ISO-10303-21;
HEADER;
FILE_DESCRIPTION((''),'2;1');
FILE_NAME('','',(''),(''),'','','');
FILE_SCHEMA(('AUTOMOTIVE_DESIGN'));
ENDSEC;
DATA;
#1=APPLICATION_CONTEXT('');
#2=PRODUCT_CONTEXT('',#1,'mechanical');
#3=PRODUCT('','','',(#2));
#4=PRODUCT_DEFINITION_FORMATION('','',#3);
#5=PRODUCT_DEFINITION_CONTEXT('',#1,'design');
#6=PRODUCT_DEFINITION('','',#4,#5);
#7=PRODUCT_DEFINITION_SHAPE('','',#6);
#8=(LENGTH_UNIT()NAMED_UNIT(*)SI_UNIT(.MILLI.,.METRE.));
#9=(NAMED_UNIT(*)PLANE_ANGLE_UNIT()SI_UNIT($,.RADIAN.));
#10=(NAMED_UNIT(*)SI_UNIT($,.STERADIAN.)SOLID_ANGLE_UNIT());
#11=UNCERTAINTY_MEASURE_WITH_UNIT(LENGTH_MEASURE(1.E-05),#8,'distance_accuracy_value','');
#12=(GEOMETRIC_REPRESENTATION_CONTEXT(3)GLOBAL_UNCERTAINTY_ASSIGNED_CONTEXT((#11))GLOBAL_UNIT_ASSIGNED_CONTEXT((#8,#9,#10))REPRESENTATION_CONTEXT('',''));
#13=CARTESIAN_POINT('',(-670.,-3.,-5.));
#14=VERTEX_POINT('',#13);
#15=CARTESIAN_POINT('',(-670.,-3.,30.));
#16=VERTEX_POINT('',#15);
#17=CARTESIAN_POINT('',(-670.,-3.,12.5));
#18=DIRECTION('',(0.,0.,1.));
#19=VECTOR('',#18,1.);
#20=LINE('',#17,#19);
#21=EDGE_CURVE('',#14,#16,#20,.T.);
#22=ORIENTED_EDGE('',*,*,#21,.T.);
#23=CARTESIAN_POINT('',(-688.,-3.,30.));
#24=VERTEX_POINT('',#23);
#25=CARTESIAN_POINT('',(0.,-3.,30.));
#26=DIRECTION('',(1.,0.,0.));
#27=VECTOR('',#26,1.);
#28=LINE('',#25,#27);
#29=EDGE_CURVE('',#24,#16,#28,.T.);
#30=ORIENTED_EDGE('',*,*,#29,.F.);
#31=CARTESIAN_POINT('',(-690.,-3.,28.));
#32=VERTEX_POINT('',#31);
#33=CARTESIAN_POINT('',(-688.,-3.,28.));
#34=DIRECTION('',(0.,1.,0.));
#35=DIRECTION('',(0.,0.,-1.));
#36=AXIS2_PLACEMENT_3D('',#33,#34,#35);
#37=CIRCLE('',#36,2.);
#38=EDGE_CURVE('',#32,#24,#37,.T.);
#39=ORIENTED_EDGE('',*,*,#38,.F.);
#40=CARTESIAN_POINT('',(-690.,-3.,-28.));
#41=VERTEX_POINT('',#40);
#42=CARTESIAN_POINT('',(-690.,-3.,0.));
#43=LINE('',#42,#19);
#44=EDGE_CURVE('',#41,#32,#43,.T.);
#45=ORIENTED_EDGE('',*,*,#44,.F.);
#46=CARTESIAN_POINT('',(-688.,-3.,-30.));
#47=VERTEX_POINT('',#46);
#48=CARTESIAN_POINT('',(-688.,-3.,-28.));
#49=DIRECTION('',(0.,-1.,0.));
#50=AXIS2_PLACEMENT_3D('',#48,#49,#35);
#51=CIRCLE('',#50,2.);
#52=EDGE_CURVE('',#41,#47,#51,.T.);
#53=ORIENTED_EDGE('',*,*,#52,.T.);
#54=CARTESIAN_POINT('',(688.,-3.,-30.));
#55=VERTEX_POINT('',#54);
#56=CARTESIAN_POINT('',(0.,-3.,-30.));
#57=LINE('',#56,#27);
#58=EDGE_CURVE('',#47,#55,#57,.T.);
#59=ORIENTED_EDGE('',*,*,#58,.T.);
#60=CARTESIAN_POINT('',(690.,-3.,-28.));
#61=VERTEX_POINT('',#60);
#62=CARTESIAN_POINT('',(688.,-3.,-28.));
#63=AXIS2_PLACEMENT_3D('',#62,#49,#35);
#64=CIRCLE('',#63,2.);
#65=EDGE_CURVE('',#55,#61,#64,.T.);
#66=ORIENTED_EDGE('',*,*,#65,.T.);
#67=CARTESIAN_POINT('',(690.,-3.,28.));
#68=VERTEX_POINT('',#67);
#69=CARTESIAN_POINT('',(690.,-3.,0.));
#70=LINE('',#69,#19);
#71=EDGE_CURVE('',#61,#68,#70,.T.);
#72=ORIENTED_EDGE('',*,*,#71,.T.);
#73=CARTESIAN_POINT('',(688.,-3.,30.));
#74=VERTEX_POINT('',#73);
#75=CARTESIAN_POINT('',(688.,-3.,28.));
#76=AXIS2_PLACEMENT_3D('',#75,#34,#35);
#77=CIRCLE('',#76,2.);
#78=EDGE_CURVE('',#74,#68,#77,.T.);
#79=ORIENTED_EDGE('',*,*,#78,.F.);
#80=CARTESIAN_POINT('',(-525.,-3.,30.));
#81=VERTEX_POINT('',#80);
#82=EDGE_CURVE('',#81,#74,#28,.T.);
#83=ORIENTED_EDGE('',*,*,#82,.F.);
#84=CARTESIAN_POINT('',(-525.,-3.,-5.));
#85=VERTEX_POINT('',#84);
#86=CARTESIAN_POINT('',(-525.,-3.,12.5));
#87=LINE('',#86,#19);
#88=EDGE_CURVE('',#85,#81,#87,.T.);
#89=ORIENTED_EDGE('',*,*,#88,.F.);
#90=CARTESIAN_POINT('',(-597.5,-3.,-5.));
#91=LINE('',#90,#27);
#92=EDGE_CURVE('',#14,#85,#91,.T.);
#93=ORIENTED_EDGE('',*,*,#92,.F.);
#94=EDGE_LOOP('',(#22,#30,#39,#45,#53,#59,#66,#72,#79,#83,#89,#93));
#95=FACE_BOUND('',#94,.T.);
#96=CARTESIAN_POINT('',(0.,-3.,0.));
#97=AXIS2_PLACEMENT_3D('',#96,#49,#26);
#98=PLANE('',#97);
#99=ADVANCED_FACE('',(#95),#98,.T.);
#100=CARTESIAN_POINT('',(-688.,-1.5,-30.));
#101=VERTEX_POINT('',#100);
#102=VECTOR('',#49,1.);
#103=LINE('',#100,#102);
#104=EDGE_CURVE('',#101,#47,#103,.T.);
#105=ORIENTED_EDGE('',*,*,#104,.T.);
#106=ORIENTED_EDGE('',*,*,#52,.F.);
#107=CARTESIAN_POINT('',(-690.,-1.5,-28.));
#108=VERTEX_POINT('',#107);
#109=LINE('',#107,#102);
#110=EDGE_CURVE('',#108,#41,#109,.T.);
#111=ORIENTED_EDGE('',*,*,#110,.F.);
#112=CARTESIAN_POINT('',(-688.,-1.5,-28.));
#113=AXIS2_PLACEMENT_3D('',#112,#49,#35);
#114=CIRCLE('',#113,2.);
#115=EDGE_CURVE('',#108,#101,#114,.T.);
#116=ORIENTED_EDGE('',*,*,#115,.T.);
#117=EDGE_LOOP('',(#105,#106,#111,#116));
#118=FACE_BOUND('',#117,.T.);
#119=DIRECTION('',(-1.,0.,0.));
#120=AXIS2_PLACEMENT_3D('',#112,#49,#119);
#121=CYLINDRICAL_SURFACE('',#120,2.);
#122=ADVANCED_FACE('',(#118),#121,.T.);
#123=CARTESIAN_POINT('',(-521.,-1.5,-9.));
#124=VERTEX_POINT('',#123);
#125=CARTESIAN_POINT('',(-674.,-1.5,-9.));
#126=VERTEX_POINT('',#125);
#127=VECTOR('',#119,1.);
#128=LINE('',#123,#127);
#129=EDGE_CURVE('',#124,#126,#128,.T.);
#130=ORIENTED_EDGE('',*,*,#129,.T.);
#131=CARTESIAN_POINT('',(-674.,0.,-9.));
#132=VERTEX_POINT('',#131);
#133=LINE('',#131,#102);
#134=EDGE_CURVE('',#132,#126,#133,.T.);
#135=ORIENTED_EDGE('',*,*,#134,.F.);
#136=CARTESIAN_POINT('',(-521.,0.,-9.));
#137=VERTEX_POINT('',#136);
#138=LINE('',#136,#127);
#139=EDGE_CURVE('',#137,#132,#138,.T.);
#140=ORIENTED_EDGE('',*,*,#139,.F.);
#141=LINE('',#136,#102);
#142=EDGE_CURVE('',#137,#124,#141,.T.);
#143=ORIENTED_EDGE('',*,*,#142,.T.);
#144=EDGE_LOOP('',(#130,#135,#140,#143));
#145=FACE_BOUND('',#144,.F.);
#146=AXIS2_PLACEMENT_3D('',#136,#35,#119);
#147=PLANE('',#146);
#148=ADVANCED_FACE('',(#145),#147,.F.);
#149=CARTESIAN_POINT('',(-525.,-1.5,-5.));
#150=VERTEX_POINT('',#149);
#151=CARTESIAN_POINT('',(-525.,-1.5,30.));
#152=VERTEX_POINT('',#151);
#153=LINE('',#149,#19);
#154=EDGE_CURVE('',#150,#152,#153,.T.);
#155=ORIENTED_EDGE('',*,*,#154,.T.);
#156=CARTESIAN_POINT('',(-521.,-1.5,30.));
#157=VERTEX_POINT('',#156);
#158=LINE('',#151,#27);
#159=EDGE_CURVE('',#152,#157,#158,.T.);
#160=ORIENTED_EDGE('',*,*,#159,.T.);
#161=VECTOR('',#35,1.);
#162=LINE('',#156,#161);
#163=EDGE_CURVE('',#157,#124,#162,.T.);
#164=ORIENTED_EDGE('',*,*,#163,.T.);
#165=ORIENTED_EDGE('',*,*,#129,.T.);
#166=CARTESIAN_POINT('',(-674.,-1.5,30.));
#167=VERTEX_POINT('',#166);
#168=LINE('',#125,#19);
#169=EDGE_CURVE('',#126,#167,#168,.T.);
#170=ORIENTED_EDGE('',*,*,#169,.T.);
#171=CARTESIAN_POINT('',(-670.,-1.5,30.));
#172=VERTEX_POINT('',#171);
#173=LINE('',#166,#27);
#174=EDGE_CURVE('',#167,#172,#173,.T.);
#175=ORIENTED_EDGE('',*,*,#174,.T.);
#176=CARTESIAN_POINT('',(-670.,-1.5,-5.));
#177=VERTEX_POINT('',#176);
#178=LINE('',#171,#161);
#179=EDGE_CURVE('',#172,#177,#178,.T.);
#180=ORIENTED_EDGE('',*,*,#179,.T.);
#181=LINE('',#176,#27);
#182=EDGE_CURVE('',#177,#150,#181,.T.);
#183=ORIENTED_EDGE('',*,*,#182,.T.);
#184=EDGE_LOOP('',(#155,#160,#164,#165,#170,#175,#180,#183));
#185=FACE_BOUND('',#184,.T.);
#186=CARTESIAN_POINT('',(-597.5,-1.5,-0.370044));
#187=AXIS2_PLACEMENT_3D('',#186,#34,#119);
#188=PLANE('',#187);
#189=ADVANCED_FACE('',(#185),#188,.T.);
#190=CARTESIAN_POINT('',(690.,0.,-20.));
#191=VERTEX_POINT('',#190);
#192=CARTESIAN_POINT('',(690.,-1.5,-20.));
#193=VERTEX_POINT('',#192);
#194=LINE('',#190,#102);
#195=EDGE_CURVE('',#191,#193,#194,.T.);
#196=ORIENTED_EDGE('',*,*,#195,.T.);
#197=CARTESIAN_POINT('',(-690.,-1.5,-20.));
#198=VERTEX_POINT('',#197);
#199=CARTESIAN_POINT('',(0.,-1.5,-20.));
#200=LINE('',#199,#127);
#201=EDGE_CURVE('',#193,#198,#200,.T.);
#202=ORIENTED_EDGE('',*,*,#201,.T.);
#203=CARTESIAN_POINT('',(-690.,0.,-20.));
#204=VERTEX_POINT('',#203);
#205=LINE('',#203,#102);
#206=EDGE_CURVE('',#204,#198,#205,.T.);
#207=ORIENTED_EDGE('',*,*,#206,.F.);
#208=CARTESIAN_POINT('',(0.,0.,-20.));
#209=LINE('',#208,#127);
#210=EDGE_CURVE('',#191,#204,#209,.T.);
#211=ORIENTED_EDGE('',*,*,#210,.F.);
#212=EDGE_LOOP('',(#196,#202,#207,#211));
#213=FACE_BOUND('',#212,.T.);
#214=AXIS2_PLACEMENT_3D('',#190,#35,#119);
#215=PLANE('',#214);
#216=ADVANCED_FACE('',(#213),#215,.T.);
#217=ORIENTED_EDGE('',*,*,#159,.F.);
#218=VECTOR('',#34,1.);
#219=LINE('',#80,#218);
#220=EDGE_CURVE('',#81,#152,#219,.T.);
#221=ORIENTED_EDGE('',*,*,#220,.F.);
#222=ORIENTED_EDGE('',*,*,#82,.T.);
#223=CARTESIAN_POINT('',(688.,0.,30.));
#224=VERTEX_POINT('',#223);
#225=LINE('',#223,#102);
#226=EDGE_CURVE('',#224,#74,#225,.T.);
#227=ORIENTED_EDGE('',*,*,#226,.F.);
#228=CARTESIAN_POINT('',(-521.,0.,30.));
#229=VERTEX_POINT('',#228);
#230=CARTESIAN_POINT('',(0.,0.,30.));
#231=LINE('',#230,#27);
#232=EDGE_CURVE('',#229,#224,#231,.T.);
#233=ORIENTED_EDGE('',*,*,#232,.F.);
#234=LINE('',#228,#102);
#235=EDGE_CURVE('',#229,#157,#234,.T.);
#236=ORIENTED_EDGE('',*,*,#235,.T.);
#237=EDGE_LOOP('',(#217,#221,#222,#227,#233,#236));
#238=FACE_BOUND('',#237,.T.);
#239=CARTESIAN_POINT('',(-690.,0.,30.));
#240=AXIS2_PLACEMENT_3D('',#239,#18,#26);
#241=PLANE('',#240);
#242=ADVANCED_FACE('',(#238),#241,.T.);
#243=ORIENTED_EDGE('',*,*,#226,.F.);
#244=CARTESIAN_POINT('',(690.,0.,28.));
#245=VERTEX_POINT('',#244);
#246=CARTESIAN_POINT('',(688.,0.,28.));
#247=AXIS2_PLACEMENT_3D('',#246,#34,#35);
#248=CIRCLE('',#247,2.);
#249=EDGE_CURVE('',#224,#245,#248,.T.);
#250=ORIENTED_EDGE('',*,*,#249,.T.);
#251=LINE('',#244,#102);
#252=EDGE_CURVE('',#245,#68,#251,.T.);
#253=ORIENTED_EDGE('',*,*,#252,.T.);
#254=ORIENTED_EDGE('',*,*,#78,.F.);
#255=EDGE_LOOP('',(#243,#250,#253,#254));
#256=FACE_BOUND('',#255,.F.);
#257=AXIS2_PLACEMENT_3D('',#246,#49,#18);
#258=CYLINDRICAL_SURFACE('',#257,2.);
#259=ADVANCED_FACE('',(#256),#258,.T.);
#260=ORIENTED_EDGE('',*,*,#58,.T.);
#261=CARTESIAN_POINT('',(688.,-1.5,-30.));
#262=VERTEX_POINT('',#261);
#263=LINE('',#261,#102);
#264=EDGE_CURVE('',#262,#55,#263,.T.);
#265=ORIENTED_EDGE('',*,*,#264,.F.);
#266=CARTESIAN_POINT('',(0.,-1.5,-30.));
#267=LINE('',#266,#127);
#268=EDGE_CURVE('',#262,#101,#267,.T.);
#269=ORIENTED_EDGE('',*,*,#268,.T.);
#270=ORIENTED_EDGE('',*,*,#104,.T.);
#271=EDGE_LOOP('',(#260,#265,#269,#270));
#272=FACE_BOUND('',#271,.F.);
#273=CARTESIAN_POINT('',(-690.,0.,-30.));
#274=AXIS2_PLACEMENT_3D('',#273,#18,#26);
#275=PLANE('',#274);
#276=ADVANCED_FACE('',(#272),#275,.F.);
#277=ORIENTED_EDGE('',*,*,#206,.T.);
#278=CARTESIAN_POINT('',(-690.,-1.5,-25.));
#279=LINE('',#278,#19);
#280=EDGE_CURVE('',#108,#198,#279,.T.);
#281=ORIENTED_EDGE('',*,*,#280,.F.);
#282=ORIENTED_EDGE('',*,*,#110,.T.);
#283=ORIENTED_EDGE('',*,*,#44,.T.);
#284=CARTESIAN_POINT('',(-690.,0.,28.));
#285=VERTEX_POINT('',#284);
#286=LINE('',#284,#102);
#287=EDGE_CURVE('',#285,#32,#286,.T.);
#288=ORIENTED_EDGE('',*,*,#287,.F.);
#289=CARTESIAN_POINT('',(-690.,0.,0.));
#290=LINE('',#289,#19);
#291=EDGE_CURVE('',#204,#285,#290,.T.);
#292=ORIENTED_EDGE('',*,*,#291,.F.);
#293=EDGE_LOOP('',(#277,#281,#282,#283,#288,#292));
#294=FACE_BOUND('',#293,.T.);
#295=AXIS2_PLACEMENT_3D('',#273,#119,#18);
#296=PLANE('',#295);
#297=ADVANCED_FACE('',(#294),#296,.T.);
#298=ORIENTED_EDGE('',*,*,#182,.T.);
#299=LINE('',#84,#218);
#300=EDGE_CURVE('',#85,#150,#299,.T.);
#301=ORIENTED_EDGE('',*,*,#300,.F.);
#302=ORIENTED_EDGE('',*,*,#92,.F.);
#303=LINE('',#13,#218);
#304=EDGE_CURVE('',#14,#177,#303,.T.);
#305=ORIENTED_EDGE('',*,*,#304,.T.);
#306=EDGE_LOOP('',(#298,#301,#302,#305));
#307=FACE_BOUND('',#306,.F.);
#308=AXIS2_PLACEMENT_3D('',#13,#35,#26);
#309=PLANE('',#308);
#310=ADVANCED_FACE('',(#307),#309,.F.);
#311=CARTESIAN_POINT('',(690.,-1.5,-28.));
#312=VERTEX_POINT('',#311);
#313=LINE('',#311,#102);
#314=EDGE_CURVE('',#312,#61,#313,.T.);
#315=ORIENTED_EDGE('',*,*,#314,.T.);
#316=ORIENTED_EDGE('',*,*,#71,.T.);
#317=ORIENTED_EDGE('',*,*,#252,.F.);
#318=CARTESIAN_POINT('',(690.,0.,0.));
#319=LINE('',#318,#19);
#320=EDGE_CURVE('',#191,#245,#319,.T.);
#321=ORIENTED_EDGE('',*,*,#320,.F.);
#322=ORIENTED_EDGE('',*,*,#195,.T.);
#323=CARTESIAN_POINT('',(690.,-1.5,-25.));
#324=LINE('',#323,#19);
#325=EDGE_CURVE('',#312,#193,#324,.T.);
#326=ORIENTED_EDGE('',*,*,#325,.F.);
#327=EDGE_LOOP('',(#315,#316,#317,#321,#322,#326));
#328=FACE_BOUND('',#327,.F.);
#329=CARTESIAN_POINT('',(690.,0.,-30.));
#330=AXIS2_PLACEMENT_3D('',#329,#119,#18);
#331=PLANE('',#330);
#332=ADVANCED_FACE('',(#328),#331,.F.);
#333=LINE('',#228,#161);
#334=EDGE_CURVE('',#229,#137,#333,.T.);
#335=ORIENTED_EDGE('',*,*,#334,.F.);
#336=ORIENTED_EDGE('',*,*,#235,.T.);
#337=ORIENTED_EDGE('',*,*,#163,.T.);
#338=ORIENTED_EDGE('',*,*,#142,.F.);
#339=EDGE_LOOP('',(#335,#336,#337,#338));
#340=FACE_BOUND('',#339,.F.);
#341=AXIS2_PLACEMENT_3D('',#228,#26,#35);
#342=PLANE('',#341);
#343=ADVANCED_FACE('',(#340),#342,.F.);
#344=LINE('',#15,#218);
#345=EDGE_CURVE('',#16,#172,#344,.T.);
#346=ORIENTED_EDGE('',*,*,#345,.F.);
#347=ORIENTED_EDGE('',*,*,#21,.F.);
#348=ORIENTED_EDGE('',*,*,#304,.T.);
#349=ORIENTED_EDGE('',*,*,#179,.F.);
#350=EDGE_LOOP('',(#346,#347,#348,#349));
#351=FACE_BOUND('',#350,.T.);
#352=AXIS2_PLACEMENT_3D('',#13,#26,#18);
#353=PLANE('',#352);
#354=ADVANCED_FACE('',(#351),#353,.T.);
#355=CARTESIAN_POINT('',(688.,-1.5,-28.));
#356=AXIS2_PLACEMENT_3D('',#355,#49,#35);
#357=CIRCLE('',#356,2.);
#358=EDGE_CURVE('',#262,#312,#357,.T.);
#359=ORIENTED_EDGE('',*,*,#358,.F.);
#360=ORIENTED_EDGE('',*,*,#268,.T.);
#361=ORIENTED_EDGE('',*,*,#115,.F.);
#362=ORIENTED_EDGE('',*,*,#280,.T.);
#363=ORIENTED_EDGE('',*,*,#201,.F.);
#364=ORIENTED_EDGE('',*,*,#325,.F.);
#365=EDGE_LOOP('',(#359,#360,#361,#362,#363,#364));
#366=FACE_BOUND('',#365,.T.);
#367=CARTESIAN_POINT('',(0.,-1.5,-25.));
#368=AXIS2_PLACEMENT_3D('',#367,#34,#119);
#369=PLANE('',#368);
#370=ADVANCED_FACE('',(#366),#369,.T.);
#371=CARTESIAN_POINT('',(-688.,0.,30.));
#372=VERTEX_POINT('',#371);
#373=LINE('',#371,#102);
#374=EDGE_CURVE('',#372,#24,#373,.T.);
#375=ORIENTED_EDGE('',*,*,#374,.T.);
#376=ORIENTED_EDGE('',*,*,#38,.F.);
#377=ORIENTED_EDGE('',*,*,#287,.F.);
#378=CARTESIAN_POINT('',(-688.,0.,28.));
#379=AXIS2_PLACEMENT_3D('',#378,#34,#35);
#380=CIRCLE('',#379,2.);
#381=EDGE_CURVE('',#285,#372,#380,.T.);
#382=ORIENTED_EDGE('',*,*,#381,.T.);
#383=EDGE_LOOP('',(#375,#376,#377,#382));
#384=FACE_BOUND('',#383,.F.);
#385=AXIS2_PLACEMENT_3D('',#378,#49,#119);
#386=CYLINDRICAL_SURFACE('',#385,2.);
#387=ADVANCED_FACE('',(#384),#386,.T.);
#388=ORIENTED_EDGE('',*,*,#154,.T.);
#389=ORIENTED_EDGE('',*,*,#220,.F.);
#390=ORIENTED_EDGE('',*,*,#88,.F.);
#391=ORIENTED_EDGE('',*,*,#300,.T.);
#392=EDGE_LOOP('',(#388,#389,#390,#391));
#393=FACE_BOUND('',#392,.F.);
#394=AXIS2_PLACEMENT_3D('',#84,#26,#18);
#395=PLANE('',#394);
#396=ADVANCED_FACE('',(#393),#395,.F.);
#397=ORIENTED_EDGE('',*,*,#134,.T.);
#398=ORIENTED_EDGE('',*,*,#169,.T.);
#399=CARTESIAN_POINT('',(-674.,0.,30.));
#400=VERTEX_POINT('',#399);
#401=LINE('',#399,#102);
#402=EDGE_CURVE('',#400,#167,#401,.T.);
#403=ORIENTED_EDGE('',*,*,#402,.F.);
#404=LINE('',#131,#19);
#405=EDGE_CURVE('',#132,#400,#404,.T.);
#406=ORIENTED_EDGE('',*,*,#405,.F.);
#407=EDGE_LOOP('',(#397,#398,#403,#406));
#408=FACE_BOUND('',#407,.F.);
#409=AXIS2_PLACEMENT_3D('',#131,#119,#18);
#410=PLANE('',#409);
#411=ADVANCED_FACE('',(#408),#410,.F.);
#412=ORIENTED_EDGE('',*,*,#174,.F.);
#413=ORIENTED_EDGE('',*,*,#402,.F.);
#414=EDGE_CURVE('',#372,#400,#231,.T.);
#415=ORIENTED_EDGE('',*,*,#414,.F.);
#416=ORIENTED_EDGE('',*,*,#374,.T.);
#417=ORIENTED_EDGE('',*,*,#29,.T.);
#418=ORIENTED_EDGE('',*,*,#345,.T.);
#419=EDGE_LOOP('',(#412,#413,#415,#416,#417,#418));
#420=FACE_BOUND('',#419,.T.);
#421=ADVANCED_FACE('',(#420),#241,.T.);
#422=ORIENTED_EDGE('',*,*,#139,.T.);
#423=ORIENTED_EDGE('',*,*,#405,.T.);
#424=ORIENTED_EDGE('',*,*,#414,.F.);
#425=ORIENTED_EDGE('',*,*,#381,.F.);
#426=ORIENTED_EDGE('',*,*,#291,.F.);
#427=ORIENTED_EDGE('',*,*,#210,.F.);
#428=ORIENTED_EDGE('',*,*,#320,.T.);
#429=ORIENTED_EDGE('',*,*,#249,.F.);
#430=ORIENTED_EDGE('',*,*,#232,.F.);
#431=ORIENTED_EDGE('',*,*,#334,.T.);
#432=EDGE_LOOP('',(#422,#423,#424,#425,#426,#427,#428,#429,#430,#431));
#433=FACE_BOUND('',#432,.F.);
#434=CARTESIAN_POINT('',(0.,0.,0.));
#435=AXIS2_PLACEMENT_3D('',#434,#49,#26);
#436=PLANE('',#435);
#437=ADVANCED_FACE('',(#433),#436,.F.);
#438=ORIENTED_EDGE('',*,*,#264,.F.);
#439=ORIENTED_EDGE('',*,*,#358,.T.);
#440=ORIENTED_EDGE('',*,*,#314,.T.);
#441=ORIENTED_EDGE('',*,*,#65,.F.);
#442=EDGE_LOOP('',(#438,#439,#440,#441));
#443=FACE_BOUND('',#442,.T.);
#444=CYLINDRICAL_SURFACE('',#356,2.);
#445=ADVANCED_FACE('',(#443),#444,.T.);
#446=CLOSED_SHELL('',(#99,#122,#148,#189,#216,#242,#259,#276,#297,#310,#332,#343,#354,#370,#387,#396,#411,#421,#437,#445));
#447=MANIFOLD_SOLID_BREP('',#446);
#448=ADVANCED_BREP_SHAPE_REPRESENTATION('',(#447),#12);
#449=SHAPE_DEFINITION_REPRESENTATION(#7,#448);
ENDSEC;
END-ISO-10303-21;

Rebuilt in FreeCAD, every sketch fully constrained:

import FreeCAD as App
import Part
import Sketcher

V = App.Vector


def edges_at(feature, points):
    """Names of the edges that pass closest to the given points."""
    edges = feature.Shape.Edges
    near = lambda p: min(range(len(edges)), key=lambda i: edges[i].distToShape(Part.Vertex(*p))[0])
    return sorted({f"Edge{near(p) + 1}" for p in points})


def add_polygon(sketch, points):
    """Adds a closed chain of lines whose ends are joined by coincident constraints."""
    first, n = sketch.GeometryCount, len(points)
    for a, b in zip(points, points[1:] + points[:1]):
        sketch.addGeometry(Part.LineSegment(App.Vector(*a, 0), App.Vector(*b, 0)), False)
    for i in range(n):
        sketch.addConstraint(Sketcher.Constraint("Coincident", first + i, 2, first + (i + 1) % n, 1))

doc = App.newDocument("Part")
body = doc.addObject("PartDesign::Body", "Body")

sketch1 = body.newObject("Sketcher::SketchObject", "Sketch")
sketch1.AttachmentSupport = (doc.getObject("XZ_Plane"), [""])
sketch1.MapMode = "FlatFace"
add_polygon(sketch1, [(-690, 30), (-690, -30), (690, -30), (690, 30)])
sketch1.addConstraint([
    Sketcher.Constraint("Vertical", 0),
    Sketcher.Constraint("Horizontal", 1),
    Sketcher.Constraint("Vertical", 2),
    Sketcher.Constraint("Horizontal", 3),
    Sketcher.Constraint("Symmetric", 0, 2, 2, 2, -1, 1),
    Sketcher.Constraint("DistanceX", 1, 1, 1, 2, 1380.0),
    Sketcher.Constraint("DistanceY", 0, 2, 0, 1, 60.0),
])
pad1 = body.newObject("PartDesign::Pad", "Pad")
pad1.Profile = sketch1
pad1.Length = 3

sketch2 = body.newObject("Sketcher::SketchObject", "Sketch001")
sketch2.AttachmentSupport = (doc.getObject("XZ_Plane"), [""])
sketch2.MapMode = "FlatFace"
add_polygon(sketch2, [(690, -20), (690, -30), (-690, -30), (-690, -20)])
sketch2.addConstraint([
    Sketcher.Constraint("Vertical", 0),
    Sketcher.Constraint("Horizontal", 1),
    Sketcher.Constraint("Vertical", 2),
    Sketcher.Constraint("Horizontal", 3),
    Sketcher.Constraint("DistanceX", 1, 2, 1, 1, 1380.0),
    Sketcher.Constraint("DistanceY", 0, 2, 0, 1, 10.0),
    Sketcher.Constraint("DistanceX", -1, 1, 0, 2, 690.0),
    Sketcher.Constraint("DistanceY", 0, 2, -1, 1, 30.0),
])
pocket1 = body.newObject("PartDesign::Pocket", "Pocket")
pocket1.Profile = sketch2
pocket1.Length = 1.5
pocket1.Reversed = True
doc.recompute()

fillet = body.newObject("PartDesign::Fillet", "Fillet")
fillet.Base = (pocket1, edges_at(pocket1, [
    (690, -2.25, -30),
    (690, -1.5, 30),
    (-690, -1.5, 30),
    (-690, -2.25, -30),
]))
fillet.Radius = 2

sketch3 = body.newObject("Sketcher::SketchObject", "Sketch002")
sketch3.AttachmentSupport = (doc.getObject("XZ_Plane"), [""])
sketch3.MapMode = "FlatFace"
sketch3.AttachmentOffset = App.Placement(V(0, 0, 3), App.Rotation())
add_polygon(sketch3, [(-670, 30), (-670, -5), (-525, -5), (-525, 30)])
sketch3.addConstraint([
    Sketcher.Constraint("Vertical", 0),
    Sketcher.Constraint("Horizontal", 1),
    Sketcher.Constraint("Vertical", 2),
    Sketcher.Constraint("Horizontal", 3),
    Sketcher.Constraint("DistanceX", 1, 1, 1, 2, 145.0),
    Sketcher.Constraint("DistanceY", 0, 2, 0, 1, 35.0),
    Sketcher.Constraint("DistanceX", 0, 2, -1, 1, 670.0),
    Sketcher.Constraint("DistanceY", 0, 2, -1, 1, 5.0),
])
pocket2 = body.newObject("PartDesign::Pocket", "Pocket001")
pocket2.Profile = sketch3
pocket2.Length = 3

sketch4 = body.newObject("Sketcher::SketchObject", "Sketch003")
sketch4.AttachmentSupport = (doc.getObject("XZ_Plane"), [""])
sketch4.MapMode = "FlatFace"
add_polygon(sketch4, [(-525, -5), (-525, 30), (-521, 30), (-521, -9), (-674, -9), (-674, 30), (-670, 30), (-670, -5)])
sketch4.addConstraint([
    Sketcher.Constraint("Vertical", 0),
    Sketcher.Constraint("Horizontal", 1),
    Sketcher.Constraint("Vertical", 2),
    Sketcher.Constraint("Horizontal", 3),
    Sketcher.Constraint("Vertical", 4),
    Sketcher.Constraint("Horizontal", 5),
    Sketcher.Constraint("Vertical", 6),
    Sketcher.Constraint("Horizontal", 7),
    Sketcher.Constraint("Horizontal", 1, 2, 4, 2),
    Sketcher.Constraint("Equal", 1, 5),
    Sketcher.Constraint("DistanceX", 1, 1, 1, 2, 4.0),
    Sketcher.Constraint("DistanceX", 3, 2, 3, 1, 153.0),
    Sketcher.Constraint("DistanceY", 0, 1, 0, 2, 35.0),
    Sketcher.Constraint("DistanceY", 2, 2, 2, 1, 39.0),
    Sketcher.Constraint("DistanceX", 0, 2, -1, 1, 525.0),
    Sketcher.Constraint("DistanceY", -1, 1, 0, 2, 30.0),
])
pocket3 = body.newObject("PartDesign::Pocket", "Pocket002")
pocket3.Profile = sketch4
pocket3.Length = 1.5
pocket3.Reversed = True

doc.recompute()
